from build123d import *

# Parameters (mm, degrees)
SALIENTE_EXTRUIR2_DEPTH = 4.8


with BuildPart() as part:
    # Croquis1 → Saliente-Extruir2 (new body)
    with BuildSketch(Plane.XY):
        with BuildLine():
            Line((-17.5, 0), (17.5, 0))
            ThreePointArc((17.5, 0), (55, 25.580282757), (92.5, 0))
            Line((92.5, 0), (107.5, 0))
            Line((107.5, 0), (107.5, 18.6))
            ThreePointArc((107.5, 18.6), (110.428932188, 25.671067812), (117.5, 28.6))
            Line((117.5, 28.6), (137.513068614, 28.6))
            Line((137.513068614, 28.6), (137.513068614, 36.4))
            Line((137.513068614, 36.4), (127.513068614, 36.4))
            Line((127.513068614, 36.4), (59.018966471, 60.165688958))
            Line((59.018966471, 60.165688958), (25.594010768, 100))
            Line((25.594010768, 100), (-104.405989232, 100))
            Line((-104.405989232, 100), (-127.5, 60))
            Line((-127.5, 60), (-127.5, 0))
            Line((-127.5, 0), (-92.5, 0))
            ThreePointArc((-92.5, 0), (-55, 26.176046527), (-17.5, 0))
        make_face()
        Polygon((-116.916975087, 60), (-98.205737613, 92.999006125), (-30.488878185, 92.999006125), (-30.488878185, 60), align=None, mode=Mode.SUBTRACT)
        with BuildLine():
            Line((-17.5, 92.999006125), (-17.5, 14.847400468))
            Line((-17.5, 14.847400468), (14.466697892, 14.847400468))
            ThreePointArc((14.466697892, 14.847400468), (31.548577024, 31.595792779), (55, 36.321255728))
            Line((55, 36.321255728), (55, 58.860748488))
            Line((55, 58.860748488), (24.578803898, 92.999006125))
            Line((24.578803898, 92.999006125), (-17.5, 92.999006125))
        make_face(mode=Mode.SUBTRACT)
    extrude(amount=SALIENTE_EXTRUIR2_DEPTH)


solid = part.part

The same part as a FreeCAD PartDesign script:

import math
import FreeCAD as App
import Part
import Sketcher

V = App.Vector
Q = App.Units.Quantity

doc = App.newDocument("Part")
body = doc.addObject("PartDesign::Body", "Body")

# Sketch on XY plane
sketch1 = body.newObject("Sketcher::SketchObject", "Sketch")
sketch1.AttachmentSupport = (doc.getObject("XY_Plane"), [""])
sketch1.MapMode = "FlatFace"
sketch1.addGeometry([
    Part.LineSegment(V(-17.5, 0, 0), V(17.5, 0, 0)),  # 0
    Part.ArcOfCircle(Part.Circle(V(55, -14.69685, 0), V(0, 0, 1), 40.277132), math.radians(21.401007), math.radians(158.598993)),  # 1
    Part.LineSegment(V(92.5, 0, 0), V(107.5, 0, 0)),  # 2
    Part.LineSegment(V(107.5, 0, 0), V(107.5, 18.6, 0)),  # 3
    Part.ArcOfCircle(Part.Circle(V(117.5, 18.6, 0), V(0, 0, 1), 10), math.radians(90), math.radians(180)),  # 4
    Part.LineSegment(V(117.5, 28.6, 0), V(137.513069, 28.6, 0)),  # 5
    Part.LineSegment(V(137.513069, 28.6, 0), V(137.513069, 36.4, 0)),  # 6
    Part.LineSegment(V(137.513069, 36.4, 0), V(127.513069, 36.4, 0)),  # 7
    Part.LineSegment(V(127.513069, 36.4, 0), V(59.018966, 60.165689, 0)),  # 8
    Part.LineSegment(V(59.018966, 60.165689, 0), V(25.594011, 100, 0)),  # 9
    Part.LineSegment(V(25.594011, 100, 0), V(-104.405989, 100, 0)),  # 10
    Part.LineSegment(V(-104.405989, 100, 0), V(-127.5, 60, 0)),  # 11
    Part.LineSegment(V(-127.5, 60, 0), V(-127.5, 0, 0)),  # 12
    Part.LineSegment(V(-127.5, 0, 0), V(-92.5, 0, 0)),  # 13
    Part.ArcOfCircle(Part.Circle(V(-55, -13.773367, 0), V(0, 0, 1), 39.949413), math.radians(20.167768), math.radians(159.832232)),  # 14
    Part.LineSegment(V(-30.488878, 60, 0), V(-116.916975, 60, 0)),  # 15
    Part.LineSegment(V(-116.916975, 60, 0), V(-98.205738, 92.999006, 0)),  # 16
    Part.LineSegment(V(-98.205738, 92.999006, 0), V(-30.488878, 92.999006, 0)),  # 17
    Part.LineSegment(V(-30.488878, 92.999006, 0), V(-30.488878, 60, 0)),  # 18
    Part.LineSegment(V(-17.5, 14.8474, 0), V(-17.5, 92.999006, 0)),  # 19
    Part.LineSegment(V(-17.5, 92.999006, 0), V(24.578804, 92.999006, 0)),  # 20
    Part.LineSegment(V(24.578804, 92.999006, 0), V(55, 58.860748, 0)),  # 21
    Part.LineSegment(V(55, 58.860748, 0), V(55, 36.321256, 0)),  # 22
    Part.ArcOfCircle(Part.Circle(V(51.239844, -5.572757, 0), V(0, 0, 1), 42.062419), math.radians(84.871216), math.radians(150.95655)),  # 23
    Part.LineSegment(V(14.466698, 14.8474, 0), V(-17.5, 14.8474, 0)),  # 24
], False)
sketch1.addConstraint([
    Sketcher.Constraint("Coincident", 0, 2, 1, 2),
    Sketcher.Constraint("Coincident", 1, 1, 2, 1),
    Sketcher.Constraint("Coincident", 2, 2, 3, 1),
    Sketcher.Constraint("Tangent", 3, 2, 4, 2),
    Sketcher.Constraint("Tangent", 4, 1, 5, 1),
    Sketcher.Constraint("Coincident", 5, 2, 6, 1),
    Sketcher.Constraint("Coincident", 6, 2, 7, 1),
    Sketcher.Constraint("Coincident", 7, 2, 8, 1),
    Sketcher.Constraint("Coincident", 8, 2, 9, 1),
    Sketcher.Constraint("Coincident", 9, 2, 10, 1),
    Sketcher.Constraint("Coincident", 10, 2, 11, 1),
    Sketcher.Constraint("Coincident", 11, 2, 12, 1),
    Sketcher.Constraint("Coincident", 12, 2, 13, 1),
    Sketcher.Constraint("Coincident", 13, 2, 14, 2),
    Sketcher.Constraint("Coincident", 14, 1, 0, 1),
    Sketcher.Constraint("Coincident", 15, 2, 16, 1),
    Sketcher.Constraint("Coincident", 16, 2, 17, 1),
    Sketcher.Constraint("Coincident", 17, 2, 18, 1),
    Sketcher.Constraint("Coincident", 18, 2, 15, 1),
    Sketcher.Constraint("Coincident", 19, 2, 20, 1),
    Sketcher.Constraint("Coincident", 20, 2, 21, 1),
    Sketcher.Constraint("Coincident", 21, 2, 22, 1),
    Sketcher.Constraint("Coincident", 22, 2, 23, 1),
    Sketcher.Constraint("Coincident", 23, 2, 24, 1),
    Sketcher.Constraint("Coincident", 24, 2, 19, 1),
    Sketcher.Constraint("Horizontal", 0),
    Sketcher.Constraint("Horizontal", 2),
    Sketcher.Constraint("Vertical", 3),
    Sketcher.Constraint("Horizontal", 5),
    Sketcher.Constraint("Vertical", 6),
    Sketcher.Constraint("Horizontal", 7),
    Sketcher.Constraint("Horizontal", 10),
    Sketcher.Constraint("Vertical", 12),
    Sketcher.Constraint("Horizontal", 13),
    Sketcher.Constraint("Horizontal", 15),
    Sketcher.Constraint("Horizontal", 17),
    Sketcher.Constraint("Vertical", 18),
    Sketcher.Constraint("Vertical", 19),
    Sketcher.Constraint("Horizontal", 20),
    Sketcher.Constraint("Vertical", 22),
    Sketcher.Constraint("Horizontal", 24),
    Sketcher.Constraint("Symmetric", 1, 1, 13, 2, -1, 1),
    Sketcher.Constraint("Symmetric", 0, 2, 14, 1, -1, 1),
    Sketcher.Constraint("PointOnObject", 1, 1, -1),
    Sketcher.Constraint("Horizontal", 11, 2, 15, 2),
    Sketcher.Constraint("Horizontal", 17, 2, 19, 2),
    Sketcher.Constraint("Vertical", 14, 1, 19, 2),
    Sketcher.Constraint("Vertical", 1, 3, 21, 2),
    Sketcher.Constraint("Equal", 0, 13),
    Sketcher.Constraint("Radius", 4, 10.0),
    Sketcher.Constraint("DistanceX", 0, 1, 0, 2, 35.0),
    Sketcher.Constraint("DistanceX", 2, 1, 2, 2, 15.0),
    Sketcher.Constraint("DistanceX", 7, 2, 7, 1, 10.0),
    Sketcher.Constraint("DistanceX", 10, 2, 10, 1, 130.0),
    Sketcher.Constraint("DistanceY", 12, 2, 12, 1, 60.0),
    Sketcher.Constraint("Angle", 9, Q("130 deg")),
    Sketcher.Constraint("Angle", 11, Q("-120 deg")),
    Sketcher.Constraint("Distance", 9, 52.0),
    Sketcher.Constraint("DistanceY", 3, 1, 3, 2, 18.6),
    Sketcher.Constraint("DistanceY", 6, 1, 6, 2, 7.8),
    Sketcher.Constraint("DistanceX", -1, 1, 1, 3, 55.0),
    Sketcher.Constraint("DistanceY", -1, 1, 9, 2, 100.0),
    Sketcher.Constraint("Distance", 8, 72.5),
    Sketcher.Constraint("Radius", 23, 42.062419),
    Sketcher.Constraint("Radius", 1, 40.277132),
    Sketcher.Constraint("Radius", 14, 39.949413),
    Sketcher.Constraint("DistanceX", 17, 1, 17, 2, 67.716859),
    Sketcher.Constraint("DistanceY", -1, 1, 23, 2, 14.8474),
    Sketcher.Constraint("Distance", 21, 45.72603),
    Sketcher.Constraint("DistanceX", 15, 2, 15, 1, 86.428097),
    Sketcher.Constraint("DistanceX", 20, 1, 20, 2, 42.078804),
    Sketcher.Constraint("DistanceX", 24, 2, 24, 1, 31.966698),
    Sketcher.Constraint("DistanceY", 18, 2, 18, 1, 32.999006),
    Sketcher.Constraint("DistanceY", 22, 2, 22, 1, 22.539493),
    Sketcher.Constraint("DistanceX", 17, 2, -1, 1, 30.488878),
])
pad1 = body.newObject("PartDesign::Pad", "Pad")
pad1.Profile = sketch1
pad1.Length = 4.8

doc.recompute()
